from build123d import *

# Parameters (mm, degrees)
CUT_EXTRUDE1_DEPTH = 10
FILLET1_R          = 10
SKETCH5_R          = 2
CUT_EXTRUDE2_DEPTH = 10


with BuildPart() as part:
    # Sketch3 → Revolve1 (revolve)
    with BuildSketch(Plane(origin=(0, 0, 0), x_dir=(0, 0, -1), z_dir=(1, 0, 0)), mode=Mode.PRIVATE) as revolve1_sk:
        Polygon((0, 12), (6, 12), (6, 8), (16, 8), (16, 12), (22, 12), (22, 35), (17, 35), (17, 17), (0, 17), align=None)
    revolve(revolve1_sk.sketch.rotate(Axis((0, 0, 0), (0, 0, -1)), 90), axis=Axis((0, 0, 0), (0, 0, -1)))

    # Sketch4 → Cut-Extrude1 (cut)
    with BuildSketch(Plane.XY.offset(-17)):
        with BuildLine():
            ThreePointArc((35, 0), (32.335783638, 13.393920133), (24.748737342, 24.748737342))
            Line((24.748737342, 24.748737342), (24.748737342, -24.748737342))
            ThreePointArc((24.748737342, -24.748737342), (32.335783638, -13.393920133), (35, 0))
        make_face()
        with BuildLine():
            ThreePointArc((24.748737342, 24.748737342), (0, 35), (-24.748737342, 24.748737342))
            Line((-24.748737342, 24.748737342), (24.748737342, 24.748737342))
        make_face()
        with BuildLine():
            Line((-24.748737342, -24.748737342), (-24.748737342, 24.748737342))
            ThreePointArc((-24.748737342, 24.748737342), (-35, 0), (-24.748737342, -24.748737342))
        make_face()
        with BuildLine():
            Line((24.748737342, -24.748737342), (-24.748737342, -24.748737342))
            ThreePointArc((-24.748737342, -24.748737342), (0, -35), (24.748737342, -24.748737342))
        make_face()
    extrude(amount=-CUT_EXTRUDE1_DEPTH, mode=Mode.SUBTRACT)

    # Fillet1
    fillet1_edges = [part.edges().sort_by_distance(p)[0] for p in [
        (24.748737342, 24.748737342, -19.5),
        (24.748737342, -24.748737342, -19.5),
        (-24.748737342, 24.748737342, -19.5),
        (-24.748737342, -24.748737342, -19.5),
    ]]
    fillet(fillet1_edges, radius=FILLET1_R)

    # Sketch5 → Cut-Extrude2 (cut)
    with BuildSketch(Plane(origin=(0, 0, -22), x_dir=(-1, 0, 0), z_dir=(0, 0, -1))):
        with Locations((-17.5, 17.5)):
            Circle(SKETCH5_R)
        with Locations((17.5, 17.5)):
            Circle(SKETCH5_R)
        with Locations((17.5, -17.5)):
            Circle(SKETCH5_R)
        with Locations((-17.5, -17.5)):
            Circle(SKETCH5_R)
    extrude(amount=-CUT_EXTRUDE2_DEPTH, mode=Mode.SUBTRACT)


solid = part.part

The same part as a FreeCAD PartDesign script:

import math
import FreeCAD as App
import Part
import Sketcher
from FreeCAD import Vector
Q = App.Units.Quantity


def edges_at(feature, points):
    """Names of the edges that pass closest to the given points."""
    edges = feature.Shape.Edges
    near = lambda p: min(range(len(edges)), key=lambda i: edges[i].distToShape(Part.Vertex(*p))[0])
    return sorted({f"Edge{near(p) + 1}" for p in points})


def add_polygon(sketch, points):
    """Adds a closed chain of lines whose ends are joined by coincident constraints."""
    first, n = sketch.GeometryCount, len(points)
    for a, b in zip(points, points[1:] + points[:1]):
        sketch.addGeometry(Part.LineSegment(App.Vector(*a, 0), App.Vector(*b, 0)), False)
    for i in range(n):
        sketch.addConstraint(Sketcher.Constraint("Coincident", first + i, 2, first + (i + 1) % n, 1))

doc = App.newDocument("Part")
body = doc.addObject("PartDesign::Body", "Body")

sketch1 = body.newObject("Sketcher::SketchObject", "Sketch")
sketch1.AttachmentSupport = (doc.getObject("YZ_Plane"), [""])
sketch1.MapMode = "FlatFace"
add_polygon(sketch1, [(12, 0), (12, -6), (8, -6), (8, -16), (12, -16), (12, -22), (35, -22), (35, -17), (17, -17), (17, 0)])
sketch1.addConstraint(Sketcher.Constraint("Vertical", 0))
sketch1.addConstraint(Sketcher.Constraint("Horizontal", 1))
sketch1.addConstraint(Sketcher.Constraint("Vertical", 2))
sketch1.addConstraint(Sketcher.Constraint("Horizontal", 3))
sketch1.addConstraint(Sketcher.Constraint("Vertical", 4))
sketch1.addConstraint(Sketcher.Constraint("Horizontal", 5))
sketch1.addConstraint(Sketcher.Constraint("Vertical", 6))
sketch1.addConstraint(Sketcher.Constraint("Horizontal", 7))
sketch1.addConstraint(Sketcher.Constraint("Vertical", 8))
sketch1.addConstraint(Sketcher.Constraint("Horizontal", 9))
sketch1.addConstraint(Sketcher.Constraint("PointOnObject", 8, 2, -1))
sketch1.addConstraint(Sketcher.Constraint("Vertical", 0, 2, 3, 2))
sketch1.addConstraint(Sketcher.Constraint("Equal", 0, 4))
sketch1.addConstraint(Sketcher.Constraint("Equal", 9, 6))
sketch1.addConstraint(Sketcher.Constraint("DistanceX", 1, 2, 1, 1, Q("4 mm")))
sketch1.addConstraint(Sketcher.Constraint("DistanceX", 5, 1, 5, 2, Q("23 mm")))
sketch1.addConstraint(Sketcher.Constraint("DistanceX", 7, 2, 7, 1, Q("18 mm")))
sketch1.addConstraint(Sketcher.Constraint("DistanceY", 0, 2, 0, 1, Q("6 mm")))
sketch1.addConstraint(Sketcher.Constraint("DistanceY", 2, 2, 2, 1, Q("10 mm")))
sketch1.addConstraint(Sketcher.Constraint("DistanceX", -1, 1, 0, 2, Q("12 mm")))
revolution = body.newObject("PartDesign::Revolution", "Revolution")
revolution.Profile = sketch1
revolution.ReferenceAxis = (sketch1, ["V_Axis"])
revolution.Angle = 360

sketch2 = body.newObject("Sketcher::SketchObject", "Sketch001")
sketch2.AttachmentSupport = (doc.getObject("XY_Plane"), [""])
sketch2.MapMode = "FlatFace"
sketch2.AttachmentOffset = App.Placement(Vector(0, 0, -17), App.Rotation())
sketch2.addGeometry(Part.ArcOfCircle(Part.Circle(Vector(0, 0, 0), Vector(0, 0, 1), 35), math.radians(0), math.radians(45)), False)
sketch2.addGeometry(Part.LineSegment(Vector(24.748737, 24.748737, 0), Vector(24.748737, -24.748737, 0)), False)
sketch2.addGeometry(Part.ArcOfCircle(Part.Circle(Vector(0, 0, 0), Vector(0, 0, 1), 35), math.radians(-45), math.radians(0)), False)
sketch2.addGeometry(Part.ArcOfCircle(Part.Circle(Vector(0, 0, 0), Vector(0, 0, 1), 35), math.radians(45), math.radians(135)), False)
sketch2.addGeometry(Part.LineSegment(Vector(-24.748737, 24.748737, 0), Vector(24.748737, 24.748737, 0)), False)
sketch2.addGeometry(Part.LineSegment(Vector(-24.748737, -24.748737, 0), Vector(-24.748737, 24.748737, 0)), False)
sketch2.addGeometry(Part.ArcOfCircle(Part.Circle(Vector(0, 0, 0), Vector(0, 0, 1), 35), math.radians(135), math.radians(225)), False)
sketch2.addGeometry(Part.LineSegment(Vector(24.748737, -24.748737, 0), Vector(-24.748737, -24.748737, 0)), False)
sketch2.addGeometry(Part.ArcOfCircle(Part.Circle(Vector(0, 0, 0), Vector(0, 0, 1), 35), math.radians(-135), math.radians(-45)), False)
sketch2.addConstraint(Sketcher.Constraint("Coincident", 0, 2, 1, 1))
sketch2.addConstraint(Sketcher.Constraint("Coincident", 1, 2, 2, 1))
sketch2.addConstraint(Sketcher.Constraint("Tangent", 2, 2, 0, 1))
sketch2.addConstraint(Sketcher.Constraint("Coincident", 3, 1, 4, 2))
sketch2.addConstraint(Sketcher.Constraint("Coincident", 4, 1, 3, 2))
sketch2.addConstraint(Sketcher.Constraint("Coincident", 5, 1, 6, 2))
sketch2.addConstraint(Sketcher.Constraint("Coincident", 6, 1, 5, 2))
sketch2.addConstraint(Sketcher.Constraint("Coincident", 7, 1, 8, 2))
sketch2.addConstraint(Sketcher.Constraint("Coincident", 8, 1, 7, 2))
sketch2.addConstraint(Sketcher.Constraint("Vertical", 1))
sketch2.addConstraint(Sketcher.Constraint("Horizontal", 4))
sketch2.addConstraint(Sketcher.Constraint("Vertical", 5))
sketch2.addConstraint(Sketcher.Constraint("Horizontal", 7))
sketch2.addConstraint(Sketcher.Constraint("Coincident", 0, 3, -1, 1))
sketch2.addConstraint(Sketcher.Constraint("Coincident", 3, 3, -1, 1))
sketch2.addConstraint(Sketcher.Constraint("Coincident", 6, 3, -1, 1))
sketch2.addConstraint(Sketcher.Constraint("Coincident", 8, 3, -1, 1))
sketch2.addConstraint(Sketcher.Constraint("Coincident", 3, 1, 0, 2))
sketch2.addConstraint(Sketcher.Constraint("Coincident", 6, 1, 4, 1))
sketch2.addConstraint(Sketcher.Constraint("Coincident", 7, 1, 1, 2))
sketch2.addConstraint(Sketcher.Constraint("Equal", 0, 2))
sketch2.addConstraint(Sketcher.Constraint("PointOnObject", 2, 2, -1))
sketch2.addConstraint(Sketcher.Constraint("Equal", 7, 1))
sketch2.addConstraint(Sketcher.Constraint("Radius", 0, Q("35 mm")))
pocket1 = body.newObject("PartDesign::Pocket", "Pocket")
pocket1.Profile = sketch2
pocket1.Length = 10
doc.recompute()

fillet = body.newObject("PartDesign::Fillet", "Fillet")
fillet.Base = (pocket1, edges_at(pocket1, [
    (24.749, 24.749, -19.5),
    (24.749, -24.749, -19.5),
    (-24.749, 24.749, -19.5),
    (-24.749, -24.749, -19.5),
]))
fillet.Radius = 10

sketch3 = body.newObject("Sketcher::SketchObject", "Sketch002")
sketch3.AttachmentSupport = (doc.getObject("XY_Plane"), [""])
sketch3.MapMode = "FlatFace"
sketch3.AttachmentOffset = App.Placement(Vector(0, 0, -22), App.Rotation())
sketch3.addGeometry(Part.Circle(Vector(17.5, 17.5, 0), Vector(0, 0, 1), 2), False)
sketch3.addGeometry(Part.Circle(Vector(-17.5, 17.5, 0), Vector(0, 0, 1), 2), False)
sketch3.addGeometry(Part.Circle(Vector(-17.5, -17.5, 0), Vector(0, 0, 1), 2), False)
sketch3.addGeometry(Part.Circle(Vector(17.5, -17.5, 0), Vector(0, 0, 1), 2), False)
sketch3.addConstraint(Sketcher.Constraint("Equal", 0, 1))
sketch3.addConstraint(Sketcher.Constraint("Equal", 1, 2))
sketch3.addConstraint(Sketcher.Constraint("Equal", 2, 3))
sketch3.addConstraint(Sketcher.Constraint("Symmetric", 0, 3, 2, 3, -1, 1))
sketch3.addConstraint(Sketcher.Constraint("Symmetric", 1, 3, 3, 3, -1, 1))
sketch3.addConstraint(Sketcher.Constraint("Symmetric", 0, 3, 1, 3, -2))
sketch3.addConstraint(Sketcher.Constraint("Diameter", 0, Q("4 mm")))
sketch3.addConstraint(Sketcher.Constraint("DistanceX", 1, 3, 0, 3, Q("35 mm")))
sketch3.addConstraint(Sketcher.Constraint("DistanceY", 2, 3, 1, 3, Q("35 mm")))
pocket2 = body.newObject("PartDesign::Pocket", "Pocket001")
pocket2.Profile = sketch3
pocket2.Length = 10
pocket2.Reversed = True

doc.recompute()
